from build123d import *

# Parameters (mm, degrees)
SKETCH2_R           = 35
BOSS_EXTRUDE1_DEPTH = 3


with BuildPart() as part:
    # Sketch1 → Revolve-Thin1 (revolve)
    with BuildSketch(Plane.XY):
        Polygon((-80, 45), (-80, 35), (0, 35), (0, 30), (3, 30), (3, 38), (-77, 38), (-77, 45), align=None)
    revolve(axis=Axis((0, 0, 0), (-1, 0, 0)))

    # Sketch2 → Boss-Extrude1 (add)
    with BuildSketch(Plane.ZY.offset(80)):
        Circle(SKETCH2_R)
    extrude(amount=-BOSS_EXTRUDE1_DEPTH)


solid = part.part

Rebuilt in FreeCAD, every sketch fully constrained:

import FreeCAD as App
import Part
import Sketcher

V = App.Vector

doc = App.newDocument("Part")
body = doc.addObject("PartDesign::Body", "Body")

sketch1 = doc.addObject("Sketcher::SketchObject", "Sketch")
body.addObject(sketch1)
sketch1.AttachmentSupport = (doc.XY_Plane, [""])
sketch1.MapMode = "FlatFace"
sketch1.addGeometry([
    Part.LineSegment(V(-80, 45, 0), V(-80, 35, 0)),
    Part.LineSegment(V(-80, 35, 0), V(0, 35, 0)),
    Part.LineSegment(V(0, 35, 0), V(0, 30, 0)),
    Part.LineSegment(V(0, 30, 0), V(3, 30, 0)),
    Part.LineSegment(V(3, 30, 0), V(3, 38, 0)),
    Part.LineSegment(V(3, 38, 0), V(-77, 38, 0)),
    Part.LineSegment(V(-77, 38, 0), V(-77, 45, 0)),
    Part.LineSegment(V(-77, 45, 0), V(-80, 45, 0)),
], False)
sketch1.addConstraint([
    Sketcher.Constraint("Coincident", 0, 2, 1, 1),
    Sketcher.Constraint("Coincident", 1, 2, 2, 1),
    Sketcher.Constraint("Coincident", 2, 2, 3, 1),
    Sketcher.Constraint("Coincident", 3, 2, 4, 1),
    Sketcher.Constraint("Coincident", 4, 2, 5, 1),
    Sketcher.Constraint("Coincident", 5, 2, 6, 1),
    Sketcher.Constraint("Coincident", 6, 2, 7, 1),
    Sketcher.Constraint("Coincident", 7, 2, 0, 1),
    Sketcher.Constraint("Vertical", 0),
    Sketcher.Constraint("Horizontal", 1),
    Sketcher.Constraint("Vertical", 2),
    Sketcher.Constraint("Horizontal", 3),
    Sketcher.Constraint("Vertical", 4),
    Sketcher.Constraint("Horizontal", 5),
    Sketcher.Constraint("Vertical", 6),
    Sketcher.Constraint("Horizontal", 7),
    Sketcher.Constraint("PointOnObject", 1, 2, -2),
    Sketcher.Constraint("Equal", 1, 5),
    Sketcher.Constraint("DistanceX", 1, 1, 1, 2, 80.0),
    Sketcher.Constraint("DistanceX", 3, 1, 3, 2, 3.0),
    Sketcher.Constraint("DistanceY", 0, 2, 0, 1, 10.0),
    Sketcher.Constraint("DistanceY", 2, 2, 2, 1, 5.0),
    Sketcher.Constraint("DistanceY", 4, 1, 4, 2, 8.0),
    Sketcher.Constraint("DistanceY", -1, 1, 0, 2, 35.0),
])
revolution = doc.addObject("PartDesign::Revolution", "Revolution")
body.addObject(revolution)
revolution.Profile = sketch1
revolution.ReferenceAxis = (sketch1, ["H_Axis"])
revolution.Angle = 360

sketch2 = doc.addObject("Sketcher::SketchObject", "Sketch001")
body.addObject(sketch2)
sketch2.AttachmentSupport = (doc.YZ_Plane, [""])
sketch2.MapMode = "FlatFace"
sketch2.AttachmentOffset = App.Placement(V(0, 0, -80), App.Rotation())
sketch2.addGeometry(Part.Circle(V(0, 0, 0), V(0, 0, 1), 35), False)
sketch2.addConstraint([
    Sketcher.Constraint("Coincident", 0, 3, -1, 1),
    Sketcher.Constraint("Diameter", 0, 70.0),
])
pad1 = doc.addObject("PartDesign::Pad", "Pad")
body.addObject(pad1)
pad1.Profile = sketch2
pad1.Length = 3

doc.recompute()
